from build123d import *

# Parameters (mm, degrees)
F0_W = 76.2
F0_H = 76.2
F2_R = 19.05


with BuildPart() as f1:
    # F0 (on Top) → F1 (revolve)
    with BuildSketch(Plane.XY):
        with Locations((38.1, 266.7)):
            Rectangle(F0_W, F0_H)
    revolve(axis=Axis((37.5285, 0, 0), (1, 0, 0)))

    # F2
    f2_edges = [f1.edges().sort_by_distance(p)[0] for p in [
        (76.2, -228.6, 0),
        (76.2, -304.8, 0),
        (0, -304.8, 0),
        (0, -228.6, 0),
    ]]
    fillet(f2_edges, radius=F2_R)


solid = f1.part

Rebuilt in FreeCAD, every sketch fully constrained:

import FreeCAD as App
import Part
import Sketcher
Q = App.Units.Quantity


def edges_at(feature, points):
    """Names of the edges that pass closest to the given points."""
    edges = feature.Shape.Edges
    near = lambda p: min(range(len(edges)), key=lambda i: edges[i].distToShape(Part.Vertex(*p))[0])
    return sorted({f"Edge{near(p) + 1}" for p in points})


def add_polygon(sketch, points):
    """Adds a closed chain of lines whose ends are joined by coincident constraints."""
    first, n = sketch.GeometryCount, len(points)
    for a, b in zip(points, points[1:] + points[:1]):
        sketch.addGeometry(Part.LineSegment(App.Vector(*a, 0), App.Vector(*b, 0)), False)
    for i in range(n):
        sketch.addConstraint(Sketcher.Constraint("Coincident", first + i, 2, first + (i + 1) % n, 1))

doc = App.newDocument("Part")
body = doc.addObject("PartDesign::Body", "Body")

# Sketch on XY plane
sketch1 = body.newObject("Sketcher::SketchObject", "Sketch")
sketch1.AttachmentSupport = (doc.getObject("XY_Plane"), [""])
sketch1.MapMode = "FlatFace"
add_polygon(sketch1, [(0, 305), (0, 229), (76, 229), (76, 305)])  # lines 0-3
sketch1.addConstraint(Sketcher.Constraint("Vertical", 0))
sketch1.addConstraint(Sketcher.Constraint("Horizontal", 1))
sketch1.addConstraint(Sketcher.Constraint("Vertical", 2))
sketch1.addConstraint(Sketcher.Constraint("Horizontal", 3))
sketch1.addConstraint(Sketcher.Constraint("PointOnObject", 0, 2, -2))
sketch1.addConstraint(Sketcher.Constraint("Equal", 3, 0))
sketch1.addConstraint(Sketcher.Constraint("DistanceX", 1, 1, 1, 2, Q("3 in")))
sketch1.addConstraint(Sketcher.Constraint("DistanceY", -1, 1, 0, 2, Q("9 in")))
revolution = body.newObject("PartDesign::Revolution", "Revolution")
revolution.Profile = sketch1
revolution.ReferenceAxis = (sketch1, ["H_Axis"])
revolution.Angle = 360
doc.recompute()

fillet = body.newObject("PartDesign::Fillet", "Fillet")
fillet.Base = (revolution, edges_at(revolution, [
    (76.2, -228.6, 0),
    (76.2, -304.8, 0),
    (0, -304.8, 0),
    (0, -228.6, 0),
]))
fillet.Radius = Q("0.75 in")

doc.recompute()
